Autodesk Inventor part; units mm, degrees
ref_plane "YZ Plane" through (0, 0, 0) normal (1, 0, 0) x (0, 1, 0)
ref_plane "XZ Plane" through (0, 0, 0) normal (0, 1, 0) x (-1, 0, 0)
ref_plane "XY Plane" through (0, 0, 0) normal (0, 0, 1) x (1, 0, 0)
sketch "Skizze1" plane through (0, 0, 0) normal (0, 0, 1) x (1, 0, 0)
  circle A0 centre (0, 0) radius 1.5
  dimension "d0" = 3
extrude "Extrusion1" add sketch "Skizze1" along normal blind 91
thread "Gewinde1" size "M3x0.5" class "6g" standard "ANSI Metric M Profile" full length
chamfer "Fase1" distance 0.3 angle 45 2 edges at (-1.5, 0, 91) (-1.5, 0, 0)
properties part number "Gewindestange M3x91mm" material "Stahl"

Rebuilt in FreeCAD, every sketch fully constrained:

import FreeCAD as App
import Part
import Sketcher
Q = App.Units.Quantity


def edges_at(feature, points):
    """Names of the edges that pass closest to the given points."""
    edges = feature.Shape.Edges
    near = lambda p: min(range(len(edges)), key=lambda i: edges[i].distToShape(Part.Vertex(*p))[0])
    return sorted({f"Edge{near(p) + 1}" for p in points})

doc = App.newDocument("Part")
body = doc.addObject("PartDesign::Body", "Body")

sketch1 = body.newObject("Sketcher::SketchObject", "Sketch")
sketch1.AttachmentSupport = (doc.getObject("XY_Plane"), [""])
sketch1.MapMode = "FlatFace"
sketch1.addGeometry(Part.Circle(App.Vector(0, 0, 0), App.Vector(0, 0, 1), 1.5), False)
sketch1.addConstraint([
    Sketcher.Constraint("Coincident", 0, 3, -1, 1),
    Sketcher.Constraint("Diameter", 0, Q("3 mm")),
])
pad1 = body.newObject("PartDesign::Pad", "Pad")
pad1.Profile = sketch1
pad1.Length = 91
doc.recompute()

chamfer = body.newObject("PartDesign::Chamfer", "Chamfer")
chamfer.Base = (pad1, edges_at(pad1, [(-1.5, 0, 91), (-1.5, 0, 0)]))
chamfer.Size = 0.3

doc.recompute()
